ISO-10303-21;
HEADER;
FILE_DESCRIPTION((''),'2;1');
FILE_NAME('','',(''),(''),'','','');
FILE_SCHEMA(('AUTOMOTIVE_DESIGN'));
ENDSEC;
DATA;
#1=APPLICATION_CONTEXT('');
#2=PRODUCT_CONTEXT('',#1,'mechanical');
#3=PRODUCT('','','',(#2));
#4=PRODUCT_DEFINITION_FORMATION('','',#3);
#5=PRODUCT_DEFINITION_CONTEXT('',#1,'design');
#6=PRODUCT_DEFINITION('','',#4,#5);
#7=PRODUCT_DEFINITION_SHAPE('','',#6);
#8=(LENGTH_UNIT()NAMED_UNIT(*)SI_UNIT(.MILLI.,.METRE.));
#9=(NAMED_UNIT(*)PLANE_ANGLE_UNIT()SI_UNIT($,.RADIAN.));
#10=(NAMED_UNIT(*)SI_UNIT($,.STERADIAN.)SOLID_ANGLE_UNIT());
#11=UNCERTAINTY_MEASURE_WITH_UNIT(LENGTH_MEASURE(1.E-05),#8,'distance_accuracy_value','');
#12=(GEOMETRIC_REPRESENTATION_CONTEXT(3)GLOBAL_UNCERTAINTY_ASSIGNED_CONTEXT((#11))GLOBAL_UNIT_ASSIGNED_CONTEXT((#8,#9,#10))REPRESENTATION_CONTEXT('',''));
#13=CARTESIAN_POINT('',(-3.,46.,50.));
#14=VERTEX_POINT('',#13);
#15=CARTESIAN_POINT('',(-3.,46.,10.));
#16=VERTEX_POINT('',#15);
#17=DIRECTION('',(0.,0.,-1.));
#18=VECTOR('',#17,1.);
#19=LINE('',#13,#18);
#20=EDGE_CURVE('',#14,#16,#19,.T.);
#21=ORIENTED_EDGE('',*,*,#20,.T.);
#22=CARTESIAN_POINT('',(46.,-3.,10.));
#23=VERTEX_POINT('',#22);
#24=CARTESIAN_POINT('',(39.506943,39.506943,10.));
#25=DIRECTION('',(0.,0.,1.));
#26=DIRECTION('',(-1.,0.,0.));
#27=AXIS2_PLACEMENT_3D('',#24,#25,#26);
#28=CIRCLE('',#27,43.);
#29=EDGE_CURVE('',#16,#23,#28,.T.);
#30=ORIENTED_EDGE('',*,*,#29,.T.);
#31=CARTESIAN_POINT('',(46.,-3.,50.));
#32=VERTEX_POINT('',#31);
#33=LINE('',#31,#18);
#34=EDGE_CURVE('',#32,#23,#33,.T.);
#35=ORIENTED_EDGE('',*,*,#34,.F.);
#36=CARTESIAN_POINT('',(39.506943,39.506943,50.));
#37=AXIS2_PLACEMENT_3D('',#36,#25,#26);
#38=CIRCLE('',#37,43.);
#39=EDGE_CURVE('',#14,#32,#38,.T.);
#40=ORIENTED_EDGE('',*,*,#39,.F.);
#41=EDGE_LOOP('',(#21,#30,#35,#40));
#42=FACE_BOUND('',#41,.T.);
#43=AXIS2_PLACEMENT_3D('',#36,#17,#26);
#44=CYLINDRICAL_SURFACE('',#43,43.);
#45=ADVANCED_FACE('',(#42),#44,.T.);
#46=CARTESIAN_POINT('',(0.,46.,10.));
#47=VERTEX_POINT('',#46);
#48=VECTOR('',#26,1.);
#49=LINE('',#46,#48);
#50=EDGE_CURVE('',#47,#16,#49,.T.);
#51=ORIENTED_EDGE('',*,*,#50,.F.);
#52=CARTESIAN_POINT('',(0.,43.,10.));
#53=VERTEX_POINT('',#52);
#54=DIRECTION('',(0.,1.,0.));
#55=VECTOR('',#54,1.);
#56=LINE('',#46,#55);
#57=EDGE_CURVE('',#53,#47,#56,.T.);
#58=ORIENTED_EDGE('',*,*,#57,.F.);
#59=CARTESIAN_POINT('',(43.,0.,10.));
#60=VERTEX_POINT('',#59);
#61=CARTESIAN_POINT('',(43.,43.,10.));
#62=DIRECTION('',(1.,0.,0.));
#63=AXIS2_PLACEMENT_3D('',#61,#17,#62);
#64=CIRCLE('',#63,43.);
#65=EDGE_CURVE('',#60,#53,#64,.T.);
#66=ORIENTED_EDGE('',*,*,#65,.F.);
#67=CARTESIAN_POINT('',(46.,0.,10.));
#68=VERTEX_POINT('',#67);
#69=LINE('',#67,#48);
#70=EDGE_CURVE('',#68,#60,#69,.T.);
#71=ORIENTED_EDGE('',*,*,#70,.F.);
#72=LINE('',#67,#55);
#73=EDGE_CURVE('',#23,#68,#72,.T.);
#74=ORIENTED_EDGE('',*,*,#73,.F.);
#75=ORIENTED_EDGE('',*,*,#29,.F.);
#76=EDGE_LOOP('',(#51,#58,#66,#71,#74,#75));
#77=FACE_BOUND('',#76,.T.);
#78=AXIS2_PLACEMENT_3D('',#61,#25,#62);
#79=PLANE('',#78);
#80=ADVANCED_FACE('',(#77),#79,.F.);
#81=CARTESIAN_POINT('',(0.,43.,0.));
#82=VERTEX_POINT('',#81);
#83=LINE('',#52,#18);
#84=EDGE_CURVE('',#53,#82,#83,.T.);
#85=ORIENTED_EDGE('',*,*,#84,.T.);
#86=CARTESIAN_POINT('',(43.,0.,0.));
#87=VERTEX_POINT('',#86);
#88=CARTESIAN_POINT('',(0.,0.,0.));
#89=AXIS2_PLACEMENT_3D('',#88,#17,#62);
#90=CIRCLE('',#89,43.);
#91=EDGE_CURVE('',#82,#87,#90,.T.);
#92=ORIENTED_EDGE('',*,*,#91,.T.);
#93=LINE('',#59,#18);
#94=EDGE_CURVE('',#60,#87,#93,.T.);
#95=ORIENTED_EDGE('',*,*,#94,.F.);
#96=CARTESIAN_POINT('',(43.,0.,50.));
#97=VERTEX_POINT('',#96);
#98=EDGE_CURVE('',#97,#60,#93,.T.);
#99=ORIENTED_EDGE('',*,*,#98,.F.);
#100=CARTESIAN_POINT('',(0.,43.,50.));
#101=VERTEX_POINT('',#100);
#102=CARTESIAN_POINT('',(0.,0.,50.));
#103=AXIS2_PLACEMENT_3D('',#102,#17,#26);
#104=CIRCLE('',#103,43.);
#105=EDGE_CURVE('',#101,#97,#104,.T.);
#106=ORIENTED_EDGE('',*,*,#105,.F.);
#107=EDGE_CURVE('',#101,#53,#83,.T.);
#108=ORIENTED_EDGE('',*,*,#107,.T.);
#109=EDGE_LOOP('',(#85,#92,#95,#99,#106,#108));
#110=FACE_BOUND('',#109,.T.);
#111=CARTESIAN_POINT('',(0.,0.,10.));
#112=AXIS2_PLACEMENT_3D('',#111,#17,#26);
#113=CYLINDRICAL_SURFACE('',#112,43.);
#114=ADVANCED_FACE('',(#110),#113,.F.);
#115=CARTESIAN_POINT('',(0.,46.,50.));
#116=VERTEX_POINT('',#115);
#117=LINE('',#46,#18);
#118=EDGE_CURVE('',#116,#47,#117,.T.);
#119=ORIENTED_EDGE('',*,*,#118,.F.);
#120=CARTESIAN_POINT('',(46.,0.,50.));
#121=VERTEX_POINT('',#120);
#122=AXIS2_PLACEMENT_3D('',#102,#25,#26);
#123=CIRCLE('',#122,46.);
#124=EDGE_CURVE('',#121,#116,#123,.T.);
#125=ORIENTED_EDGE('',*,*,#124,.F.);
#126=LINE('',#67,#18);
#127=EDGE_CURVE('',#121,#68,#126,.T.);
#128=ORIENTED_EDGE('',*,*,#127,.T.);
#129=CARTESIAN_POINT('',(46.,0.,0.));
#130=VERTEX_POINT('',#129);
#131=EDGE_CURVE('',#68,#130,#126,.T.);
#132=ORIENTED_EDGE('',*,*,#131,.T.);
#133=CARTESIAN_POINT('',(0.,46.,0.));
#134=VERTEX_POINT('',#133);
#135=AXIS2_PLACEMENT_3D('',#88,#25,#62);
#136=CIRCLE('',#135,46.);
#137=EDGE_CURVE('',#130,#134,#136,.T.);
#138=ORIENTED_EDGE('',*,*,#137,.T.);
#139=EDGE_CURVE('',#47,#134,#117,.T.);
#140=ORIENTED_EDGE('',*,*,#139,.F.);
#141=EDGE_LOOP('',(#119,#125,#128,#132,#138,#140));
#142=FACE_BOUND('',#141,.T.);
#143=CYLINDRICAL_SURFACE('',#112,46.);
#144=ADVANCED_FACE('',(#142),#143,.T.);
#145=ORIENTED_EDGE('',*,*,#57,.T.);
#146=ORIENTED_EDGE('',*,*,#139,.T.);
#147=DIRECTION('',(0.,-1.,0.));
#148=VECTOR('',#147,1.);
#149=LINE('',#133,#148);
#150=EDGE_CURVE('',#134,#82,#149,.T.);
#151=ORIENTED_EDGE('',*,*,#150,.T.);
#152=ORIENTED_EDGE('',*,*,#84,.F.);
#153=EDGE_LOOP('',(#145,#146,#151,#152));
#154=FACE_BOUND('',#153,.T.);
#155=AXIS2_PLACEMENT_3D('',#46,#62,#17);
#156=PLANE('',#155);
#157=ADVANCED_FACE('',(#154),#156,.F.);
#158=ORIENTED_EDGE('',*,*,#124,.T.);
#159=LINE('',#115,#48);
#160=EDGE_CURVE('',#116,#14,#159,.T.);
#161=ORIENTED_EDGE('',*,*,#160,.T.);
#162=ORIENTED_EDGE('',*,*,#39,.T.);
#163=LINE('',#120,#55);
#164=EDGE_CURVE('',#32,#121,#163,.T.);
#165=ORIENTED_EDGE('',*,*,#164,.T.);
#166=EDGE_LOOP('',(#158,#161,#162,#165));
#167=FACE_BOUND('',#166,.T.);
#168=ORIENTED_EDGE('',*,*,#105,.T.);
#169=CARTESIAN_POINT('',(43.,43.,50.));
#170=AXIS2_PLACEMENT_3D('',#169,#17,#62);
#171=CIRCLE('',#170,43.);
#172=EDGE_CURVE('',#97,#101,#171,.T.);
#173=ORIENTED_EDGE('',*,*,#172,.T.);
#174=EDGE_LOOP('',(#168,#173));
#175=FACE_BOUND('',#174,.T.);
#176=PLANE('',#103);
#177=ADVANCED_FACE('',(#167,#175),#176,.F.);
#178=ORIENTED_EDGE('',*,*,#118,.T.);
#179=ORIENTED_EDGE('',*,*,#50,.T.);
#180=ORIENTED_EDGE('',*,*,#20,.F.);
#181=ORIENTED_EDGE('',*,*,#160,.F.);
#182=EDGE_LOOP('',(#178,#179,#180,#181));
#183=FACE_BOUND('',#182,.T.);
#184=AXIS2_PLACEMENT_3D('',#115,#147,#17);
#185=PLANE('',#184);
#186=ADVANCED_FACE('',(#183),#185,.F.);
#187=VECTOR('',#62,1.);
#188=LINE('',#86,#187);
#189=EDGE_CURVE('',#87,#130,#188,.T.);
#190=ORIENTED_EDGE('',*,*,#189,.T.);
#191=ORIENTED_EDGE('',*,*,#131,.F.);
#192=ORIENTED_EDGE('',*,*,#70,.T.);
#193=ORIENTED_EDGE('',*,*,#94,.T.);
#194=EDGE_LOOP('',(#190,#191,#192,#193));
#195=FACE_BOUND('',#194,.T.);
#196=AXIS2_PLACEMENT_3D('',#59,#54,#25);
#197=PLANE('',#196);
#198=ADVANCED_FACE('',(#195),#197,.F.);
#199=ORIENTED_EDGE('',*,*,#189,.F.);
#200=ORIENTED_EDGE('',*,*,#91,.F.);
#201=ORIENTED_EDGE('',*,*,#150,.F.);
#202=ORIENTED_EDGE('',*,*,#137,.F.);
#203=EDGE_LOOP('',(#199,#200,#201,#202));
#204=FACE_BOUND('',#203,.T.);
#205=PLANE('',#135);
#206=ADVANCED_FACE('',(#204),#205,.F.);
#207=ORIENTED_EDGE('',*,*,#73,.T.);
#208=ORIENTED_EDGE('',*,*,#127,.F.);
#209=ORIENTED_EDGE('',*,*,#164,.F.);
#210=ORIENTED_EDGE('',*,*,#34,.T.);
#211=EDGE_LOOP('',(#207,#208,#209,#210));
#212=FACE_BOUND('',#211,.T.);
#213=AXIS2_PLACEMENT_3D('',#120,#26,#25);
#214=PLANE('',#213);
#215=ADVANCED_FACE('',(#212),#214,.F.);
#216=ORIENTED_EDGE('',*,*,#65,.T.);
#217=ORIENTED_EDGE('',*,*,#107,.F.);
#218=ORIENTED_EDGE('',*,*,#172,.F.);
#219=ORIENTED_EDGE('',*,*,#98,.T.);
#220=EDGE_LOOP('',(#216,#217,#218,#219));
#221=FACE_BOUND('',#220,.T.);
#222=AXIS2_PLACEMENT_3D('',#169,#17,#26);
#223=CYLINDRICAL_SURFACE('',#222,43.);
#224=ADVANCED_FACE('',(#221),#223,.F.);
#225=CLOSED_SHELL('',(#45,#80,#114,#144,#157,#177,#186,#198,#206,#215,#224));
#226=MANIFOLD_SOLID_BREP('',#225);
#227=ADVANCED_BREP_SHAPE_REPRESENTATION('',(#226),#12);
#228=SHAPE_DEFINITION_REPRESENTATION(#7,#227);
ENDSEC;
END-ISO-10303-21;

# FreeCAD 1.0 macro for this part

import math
import FreeCAD as App
import Part
import Sketcher

doc = App.newDocument("Part")
body = doc.addObject("PartDesign::Body", "Body")

# Sketch on XY plane
sketch1 = body.newObject("Sketcher::SketchObject", "Sketch")
sketch1.AttachmentSupport = (doc.getObject("XY_Plane"), [""])
sketch1.MapMode = "FlatFace"
sketch1.addGeometry(Part.LineSegment(App.Vector(0, 46, 0), App.Vector(0, 43, 0)), False)
sketch1.addGeometry(Part.ArcOfCircle(Part.Circle(App.Vector(0, 0, 0), App.Vector(0, 0, 1), 43), math.radians(0), math.radians(90)), False)
sketch1.addGeometry(Part.LineSegment(App.Vector(43, 0, 0), App.Vector(46, 0, 0)), False)
sketch1.addGeometry(Part.ArcOfCircle(Part.Circle(App.Vector(0, 0, 0), App.Vector(0, 0, 1), 46), math.radians(0), math.radians(90)), False)
sketch1.addConstraint(Sketcher.Constraint("Coincident", 0, 2, 1, 2))
sketch1.addConstraint(Sketcher.Constraint("Coincident", 1, 1, 2, 1))
sketch1.addConstraint(Sketcher.Constraint("Coincident", 2, 2, 3, 1))
sketch1.addConstraint(Sketcher.Constraint("Coincident", 3, 2, 0, 1))
sketch1.addConstraint(Sketcher.Constraint("Vertical", 0))
sketch1.addConstraint(Sketcher.Constraint("Horizontal", 2))
sketch1.addConstraint(Sketcher.Constraint("Coincident", 1, 3, -1, 1))
sketch1.addConstraint(Sketcher.Constraint("Coincident", 3, 3, -1, 1))
sketch1.addConstraint(Sketcher.Constraint("PointOnObject", 0, 2, -2))
sketch1.addConstraint(Sketcher.Constraint("PointOnObject", 1, 1, -1))
sketch1.addConstraint(Sketcher.Constraint("Radius", 1, 43.0))
sketch1.addConstraint(Sketcher.Constraint("Radius", 3, 46.0))
pad1 = body.newObject("PartDesign::Pad", "Pad")
pad1.Profile = sketch1
pad1.Length = 10
body2 = doc.addObject("PartDesign::Body", "Body001")

# Sketch on XY plane
sketch2 = body2.newObject("Sketcher::SketchObject", "Sketch001")
sketch2.AttachmentSupport = (doc.getObject("XY_Plane001"), [""])
sketch2.MapMode = "FlatFace"
sketch2.AttachmentOffset = App.Placement(App.Vector(0, 0, 10), App.Rotation())
sketch2.addGeometry(Part.LineSegment(App.Vector(0, 46, 0), App.Vector(-3, 46, 0)), False)
sketch2.addGeometry(Part.ArcOfCircle(Part.Circle(App.Vector(39.5, 39.5, 0), App.Vector(0, 0, 1), 43), math.radians(171), math.radians(279)), False)
sketch2.addGeometry(Part.LineSegment(App.Vector(46, -3, 0), App.Vector(46, 0, 0)), False)
sketch2.addGeometry(Part.LineSegment(App.Vector(46, 0, 0), App.Vector(43, 0, 0)), False)
sketch2.addGeometry(Part.ArcOfCircle(Part.Circle(App.Vector(43, 43, 0), App.Vector(0, 0, 1), 43), math.radians(180), math.radians(270)), False)
sketch2.addGeometry(Part.LineSegment(App.Vector(0, 43, 0), App.Vector(0, 46, 0)), False)
sketch2.addConstraint(Sketcher.Constraint("Coincident", 0, 2, 1, 1))
sketch2.addConstraint(Sketcher.Constraint("Coincident", 1, 2, 2, 1))
sketch2.addConstraint(Sketcher.Constraint("Coincident", 2, 2, 3, 1))
sketch2.addConstraint(Sketcher.Constraint("Tangent", 3, 2, 4, 2))
sketch2.addConstraint(Sketcher.Constraint("Tangent", 4, 1, 5, 1))
sketch2.addConstraint(Sketcher.Constraint("Coincident", 5, 2, 0, 1))
sketch2.addConstraint(Sketcher.Constraint("Horizontal", 0))
sketch2.addConstraint(Sketcher.Constraint("Vertical", 2))
sketch2.addConstraint(Sketcher.Constraint("Horizontal", 3))
sketch2.addConstraint(Sketcher.Constraint("Vertical", 5))
sketch2.addConstraint(Sketcher.Constraint("Equal", 1, 4))
sketch2.addConstraint(Sketcher.Constraint("PointOnObject", 2, 2, -1))
sketch2.addConstraint(Sketcher.Constraint("PointOnObject", 4, 1, -2))
sketch2.addConstraint(Sketcher.Constraint("Equal", 0, 3))
sketch2.addConstraint(Sketcher.Constraint("Equal", 3, 2))
sketch2.addConstraint(Sketcher.Constraint("Equal", 2, 5))
sketch2.addConstraint(Sketcher.Constraint("Radius", 1, 43.0))
sketch2.addConstraint(Sketcher.Constraint("DistanceX", 0, 2, 0, 1, 3.0))
pad2 = body2.newObject("PartDesign::Pad", "Pad001")
pad2.Profile = sketch2
pad2.Length = 40
body.AllowCompound = True
doc.recompute()

boolean = body.newObject("PartDesign::Boolean", "Boolean")
boolean.Type = "Fuse"
boolean.addObjects([body2])

# Sketch on XY plane
sketch3 = body.newObject("Sketcher::SketchObject", "Sketch002")
sketch3.AttachmentSupport = (doc.getObject("XY_Plane"), [""])
sketch3.MapMode = "FlatFace"
sketch3.AttachmentOffset = App.Placement(App.Vector(0, 0, 10), App.Rotation())
sketch3.addGeometry(Part.LineSegment(App.Vector(0, 46, 0), App.Vector(0, 43, 0)), False)
sketch3.addGeometry(Part.ArcOfCircle(Part.Circle(App.Vector(0, 0, 0), App.Vector(0, 0, 1), 43), math.radians(0), math.radians(90)), False)
sketch3.addGeometry(Part.LineSegment(App.Vector(43, 0, 0), App.Vector(46, 0, 0)), False)
sketch3.addGeometry(Part.ArcOfCircle(Part.Circle(App.Vector(0, 0, 0), App.Vector(0, 0, 1), 46), math.radians(0), math.radians(90)), False)
sketch3.addConstraint(Sketcher.Constraint("Coincident", 0, 2, 1, 2))
sketch3.addConstraint(Sketcher.Constraint("Coincident", 1, 1, 2, 1))
sketch3.addConstraint(Sketcher.Constraint("Coincident", 2, 2, 3, 1))
sketch3.addConstraint(Sketcher.Constraint("Coincident", 3, 2, 0, 1))
sketch3.addConstraint(Sketcher.Constraint("Vertical", 0))
sketch3.addConstraint(Sketcher.Constraint("Horizontal", 2))
sketch3.addConstraint(Sketcher.Constraint("Coincident", 1, 3, -1, 1))
sketch3.addConstraint(Sketcher.Constraint("Coincident", 3, 3, -1, 1))
sketch3.addConstraint(Sketcher.Constraint("PointOnObject", 0, 2, -2))
sketch3.addConstraint(Sketcher.Constraint("PointOnObject", 1, 1, -1))
sketch3.addConstraint(Sketcher.Constraint("Radius", 1, 43.0))
sketch3.addConstraint(Sketcher.Constraint("Radius", 3, 46.0))
pad3 = body.newObject("PartDesign::Pad", "Pad002")
pad3.Profile = sketch3
pad3.Length = 40

doc.recompute()
